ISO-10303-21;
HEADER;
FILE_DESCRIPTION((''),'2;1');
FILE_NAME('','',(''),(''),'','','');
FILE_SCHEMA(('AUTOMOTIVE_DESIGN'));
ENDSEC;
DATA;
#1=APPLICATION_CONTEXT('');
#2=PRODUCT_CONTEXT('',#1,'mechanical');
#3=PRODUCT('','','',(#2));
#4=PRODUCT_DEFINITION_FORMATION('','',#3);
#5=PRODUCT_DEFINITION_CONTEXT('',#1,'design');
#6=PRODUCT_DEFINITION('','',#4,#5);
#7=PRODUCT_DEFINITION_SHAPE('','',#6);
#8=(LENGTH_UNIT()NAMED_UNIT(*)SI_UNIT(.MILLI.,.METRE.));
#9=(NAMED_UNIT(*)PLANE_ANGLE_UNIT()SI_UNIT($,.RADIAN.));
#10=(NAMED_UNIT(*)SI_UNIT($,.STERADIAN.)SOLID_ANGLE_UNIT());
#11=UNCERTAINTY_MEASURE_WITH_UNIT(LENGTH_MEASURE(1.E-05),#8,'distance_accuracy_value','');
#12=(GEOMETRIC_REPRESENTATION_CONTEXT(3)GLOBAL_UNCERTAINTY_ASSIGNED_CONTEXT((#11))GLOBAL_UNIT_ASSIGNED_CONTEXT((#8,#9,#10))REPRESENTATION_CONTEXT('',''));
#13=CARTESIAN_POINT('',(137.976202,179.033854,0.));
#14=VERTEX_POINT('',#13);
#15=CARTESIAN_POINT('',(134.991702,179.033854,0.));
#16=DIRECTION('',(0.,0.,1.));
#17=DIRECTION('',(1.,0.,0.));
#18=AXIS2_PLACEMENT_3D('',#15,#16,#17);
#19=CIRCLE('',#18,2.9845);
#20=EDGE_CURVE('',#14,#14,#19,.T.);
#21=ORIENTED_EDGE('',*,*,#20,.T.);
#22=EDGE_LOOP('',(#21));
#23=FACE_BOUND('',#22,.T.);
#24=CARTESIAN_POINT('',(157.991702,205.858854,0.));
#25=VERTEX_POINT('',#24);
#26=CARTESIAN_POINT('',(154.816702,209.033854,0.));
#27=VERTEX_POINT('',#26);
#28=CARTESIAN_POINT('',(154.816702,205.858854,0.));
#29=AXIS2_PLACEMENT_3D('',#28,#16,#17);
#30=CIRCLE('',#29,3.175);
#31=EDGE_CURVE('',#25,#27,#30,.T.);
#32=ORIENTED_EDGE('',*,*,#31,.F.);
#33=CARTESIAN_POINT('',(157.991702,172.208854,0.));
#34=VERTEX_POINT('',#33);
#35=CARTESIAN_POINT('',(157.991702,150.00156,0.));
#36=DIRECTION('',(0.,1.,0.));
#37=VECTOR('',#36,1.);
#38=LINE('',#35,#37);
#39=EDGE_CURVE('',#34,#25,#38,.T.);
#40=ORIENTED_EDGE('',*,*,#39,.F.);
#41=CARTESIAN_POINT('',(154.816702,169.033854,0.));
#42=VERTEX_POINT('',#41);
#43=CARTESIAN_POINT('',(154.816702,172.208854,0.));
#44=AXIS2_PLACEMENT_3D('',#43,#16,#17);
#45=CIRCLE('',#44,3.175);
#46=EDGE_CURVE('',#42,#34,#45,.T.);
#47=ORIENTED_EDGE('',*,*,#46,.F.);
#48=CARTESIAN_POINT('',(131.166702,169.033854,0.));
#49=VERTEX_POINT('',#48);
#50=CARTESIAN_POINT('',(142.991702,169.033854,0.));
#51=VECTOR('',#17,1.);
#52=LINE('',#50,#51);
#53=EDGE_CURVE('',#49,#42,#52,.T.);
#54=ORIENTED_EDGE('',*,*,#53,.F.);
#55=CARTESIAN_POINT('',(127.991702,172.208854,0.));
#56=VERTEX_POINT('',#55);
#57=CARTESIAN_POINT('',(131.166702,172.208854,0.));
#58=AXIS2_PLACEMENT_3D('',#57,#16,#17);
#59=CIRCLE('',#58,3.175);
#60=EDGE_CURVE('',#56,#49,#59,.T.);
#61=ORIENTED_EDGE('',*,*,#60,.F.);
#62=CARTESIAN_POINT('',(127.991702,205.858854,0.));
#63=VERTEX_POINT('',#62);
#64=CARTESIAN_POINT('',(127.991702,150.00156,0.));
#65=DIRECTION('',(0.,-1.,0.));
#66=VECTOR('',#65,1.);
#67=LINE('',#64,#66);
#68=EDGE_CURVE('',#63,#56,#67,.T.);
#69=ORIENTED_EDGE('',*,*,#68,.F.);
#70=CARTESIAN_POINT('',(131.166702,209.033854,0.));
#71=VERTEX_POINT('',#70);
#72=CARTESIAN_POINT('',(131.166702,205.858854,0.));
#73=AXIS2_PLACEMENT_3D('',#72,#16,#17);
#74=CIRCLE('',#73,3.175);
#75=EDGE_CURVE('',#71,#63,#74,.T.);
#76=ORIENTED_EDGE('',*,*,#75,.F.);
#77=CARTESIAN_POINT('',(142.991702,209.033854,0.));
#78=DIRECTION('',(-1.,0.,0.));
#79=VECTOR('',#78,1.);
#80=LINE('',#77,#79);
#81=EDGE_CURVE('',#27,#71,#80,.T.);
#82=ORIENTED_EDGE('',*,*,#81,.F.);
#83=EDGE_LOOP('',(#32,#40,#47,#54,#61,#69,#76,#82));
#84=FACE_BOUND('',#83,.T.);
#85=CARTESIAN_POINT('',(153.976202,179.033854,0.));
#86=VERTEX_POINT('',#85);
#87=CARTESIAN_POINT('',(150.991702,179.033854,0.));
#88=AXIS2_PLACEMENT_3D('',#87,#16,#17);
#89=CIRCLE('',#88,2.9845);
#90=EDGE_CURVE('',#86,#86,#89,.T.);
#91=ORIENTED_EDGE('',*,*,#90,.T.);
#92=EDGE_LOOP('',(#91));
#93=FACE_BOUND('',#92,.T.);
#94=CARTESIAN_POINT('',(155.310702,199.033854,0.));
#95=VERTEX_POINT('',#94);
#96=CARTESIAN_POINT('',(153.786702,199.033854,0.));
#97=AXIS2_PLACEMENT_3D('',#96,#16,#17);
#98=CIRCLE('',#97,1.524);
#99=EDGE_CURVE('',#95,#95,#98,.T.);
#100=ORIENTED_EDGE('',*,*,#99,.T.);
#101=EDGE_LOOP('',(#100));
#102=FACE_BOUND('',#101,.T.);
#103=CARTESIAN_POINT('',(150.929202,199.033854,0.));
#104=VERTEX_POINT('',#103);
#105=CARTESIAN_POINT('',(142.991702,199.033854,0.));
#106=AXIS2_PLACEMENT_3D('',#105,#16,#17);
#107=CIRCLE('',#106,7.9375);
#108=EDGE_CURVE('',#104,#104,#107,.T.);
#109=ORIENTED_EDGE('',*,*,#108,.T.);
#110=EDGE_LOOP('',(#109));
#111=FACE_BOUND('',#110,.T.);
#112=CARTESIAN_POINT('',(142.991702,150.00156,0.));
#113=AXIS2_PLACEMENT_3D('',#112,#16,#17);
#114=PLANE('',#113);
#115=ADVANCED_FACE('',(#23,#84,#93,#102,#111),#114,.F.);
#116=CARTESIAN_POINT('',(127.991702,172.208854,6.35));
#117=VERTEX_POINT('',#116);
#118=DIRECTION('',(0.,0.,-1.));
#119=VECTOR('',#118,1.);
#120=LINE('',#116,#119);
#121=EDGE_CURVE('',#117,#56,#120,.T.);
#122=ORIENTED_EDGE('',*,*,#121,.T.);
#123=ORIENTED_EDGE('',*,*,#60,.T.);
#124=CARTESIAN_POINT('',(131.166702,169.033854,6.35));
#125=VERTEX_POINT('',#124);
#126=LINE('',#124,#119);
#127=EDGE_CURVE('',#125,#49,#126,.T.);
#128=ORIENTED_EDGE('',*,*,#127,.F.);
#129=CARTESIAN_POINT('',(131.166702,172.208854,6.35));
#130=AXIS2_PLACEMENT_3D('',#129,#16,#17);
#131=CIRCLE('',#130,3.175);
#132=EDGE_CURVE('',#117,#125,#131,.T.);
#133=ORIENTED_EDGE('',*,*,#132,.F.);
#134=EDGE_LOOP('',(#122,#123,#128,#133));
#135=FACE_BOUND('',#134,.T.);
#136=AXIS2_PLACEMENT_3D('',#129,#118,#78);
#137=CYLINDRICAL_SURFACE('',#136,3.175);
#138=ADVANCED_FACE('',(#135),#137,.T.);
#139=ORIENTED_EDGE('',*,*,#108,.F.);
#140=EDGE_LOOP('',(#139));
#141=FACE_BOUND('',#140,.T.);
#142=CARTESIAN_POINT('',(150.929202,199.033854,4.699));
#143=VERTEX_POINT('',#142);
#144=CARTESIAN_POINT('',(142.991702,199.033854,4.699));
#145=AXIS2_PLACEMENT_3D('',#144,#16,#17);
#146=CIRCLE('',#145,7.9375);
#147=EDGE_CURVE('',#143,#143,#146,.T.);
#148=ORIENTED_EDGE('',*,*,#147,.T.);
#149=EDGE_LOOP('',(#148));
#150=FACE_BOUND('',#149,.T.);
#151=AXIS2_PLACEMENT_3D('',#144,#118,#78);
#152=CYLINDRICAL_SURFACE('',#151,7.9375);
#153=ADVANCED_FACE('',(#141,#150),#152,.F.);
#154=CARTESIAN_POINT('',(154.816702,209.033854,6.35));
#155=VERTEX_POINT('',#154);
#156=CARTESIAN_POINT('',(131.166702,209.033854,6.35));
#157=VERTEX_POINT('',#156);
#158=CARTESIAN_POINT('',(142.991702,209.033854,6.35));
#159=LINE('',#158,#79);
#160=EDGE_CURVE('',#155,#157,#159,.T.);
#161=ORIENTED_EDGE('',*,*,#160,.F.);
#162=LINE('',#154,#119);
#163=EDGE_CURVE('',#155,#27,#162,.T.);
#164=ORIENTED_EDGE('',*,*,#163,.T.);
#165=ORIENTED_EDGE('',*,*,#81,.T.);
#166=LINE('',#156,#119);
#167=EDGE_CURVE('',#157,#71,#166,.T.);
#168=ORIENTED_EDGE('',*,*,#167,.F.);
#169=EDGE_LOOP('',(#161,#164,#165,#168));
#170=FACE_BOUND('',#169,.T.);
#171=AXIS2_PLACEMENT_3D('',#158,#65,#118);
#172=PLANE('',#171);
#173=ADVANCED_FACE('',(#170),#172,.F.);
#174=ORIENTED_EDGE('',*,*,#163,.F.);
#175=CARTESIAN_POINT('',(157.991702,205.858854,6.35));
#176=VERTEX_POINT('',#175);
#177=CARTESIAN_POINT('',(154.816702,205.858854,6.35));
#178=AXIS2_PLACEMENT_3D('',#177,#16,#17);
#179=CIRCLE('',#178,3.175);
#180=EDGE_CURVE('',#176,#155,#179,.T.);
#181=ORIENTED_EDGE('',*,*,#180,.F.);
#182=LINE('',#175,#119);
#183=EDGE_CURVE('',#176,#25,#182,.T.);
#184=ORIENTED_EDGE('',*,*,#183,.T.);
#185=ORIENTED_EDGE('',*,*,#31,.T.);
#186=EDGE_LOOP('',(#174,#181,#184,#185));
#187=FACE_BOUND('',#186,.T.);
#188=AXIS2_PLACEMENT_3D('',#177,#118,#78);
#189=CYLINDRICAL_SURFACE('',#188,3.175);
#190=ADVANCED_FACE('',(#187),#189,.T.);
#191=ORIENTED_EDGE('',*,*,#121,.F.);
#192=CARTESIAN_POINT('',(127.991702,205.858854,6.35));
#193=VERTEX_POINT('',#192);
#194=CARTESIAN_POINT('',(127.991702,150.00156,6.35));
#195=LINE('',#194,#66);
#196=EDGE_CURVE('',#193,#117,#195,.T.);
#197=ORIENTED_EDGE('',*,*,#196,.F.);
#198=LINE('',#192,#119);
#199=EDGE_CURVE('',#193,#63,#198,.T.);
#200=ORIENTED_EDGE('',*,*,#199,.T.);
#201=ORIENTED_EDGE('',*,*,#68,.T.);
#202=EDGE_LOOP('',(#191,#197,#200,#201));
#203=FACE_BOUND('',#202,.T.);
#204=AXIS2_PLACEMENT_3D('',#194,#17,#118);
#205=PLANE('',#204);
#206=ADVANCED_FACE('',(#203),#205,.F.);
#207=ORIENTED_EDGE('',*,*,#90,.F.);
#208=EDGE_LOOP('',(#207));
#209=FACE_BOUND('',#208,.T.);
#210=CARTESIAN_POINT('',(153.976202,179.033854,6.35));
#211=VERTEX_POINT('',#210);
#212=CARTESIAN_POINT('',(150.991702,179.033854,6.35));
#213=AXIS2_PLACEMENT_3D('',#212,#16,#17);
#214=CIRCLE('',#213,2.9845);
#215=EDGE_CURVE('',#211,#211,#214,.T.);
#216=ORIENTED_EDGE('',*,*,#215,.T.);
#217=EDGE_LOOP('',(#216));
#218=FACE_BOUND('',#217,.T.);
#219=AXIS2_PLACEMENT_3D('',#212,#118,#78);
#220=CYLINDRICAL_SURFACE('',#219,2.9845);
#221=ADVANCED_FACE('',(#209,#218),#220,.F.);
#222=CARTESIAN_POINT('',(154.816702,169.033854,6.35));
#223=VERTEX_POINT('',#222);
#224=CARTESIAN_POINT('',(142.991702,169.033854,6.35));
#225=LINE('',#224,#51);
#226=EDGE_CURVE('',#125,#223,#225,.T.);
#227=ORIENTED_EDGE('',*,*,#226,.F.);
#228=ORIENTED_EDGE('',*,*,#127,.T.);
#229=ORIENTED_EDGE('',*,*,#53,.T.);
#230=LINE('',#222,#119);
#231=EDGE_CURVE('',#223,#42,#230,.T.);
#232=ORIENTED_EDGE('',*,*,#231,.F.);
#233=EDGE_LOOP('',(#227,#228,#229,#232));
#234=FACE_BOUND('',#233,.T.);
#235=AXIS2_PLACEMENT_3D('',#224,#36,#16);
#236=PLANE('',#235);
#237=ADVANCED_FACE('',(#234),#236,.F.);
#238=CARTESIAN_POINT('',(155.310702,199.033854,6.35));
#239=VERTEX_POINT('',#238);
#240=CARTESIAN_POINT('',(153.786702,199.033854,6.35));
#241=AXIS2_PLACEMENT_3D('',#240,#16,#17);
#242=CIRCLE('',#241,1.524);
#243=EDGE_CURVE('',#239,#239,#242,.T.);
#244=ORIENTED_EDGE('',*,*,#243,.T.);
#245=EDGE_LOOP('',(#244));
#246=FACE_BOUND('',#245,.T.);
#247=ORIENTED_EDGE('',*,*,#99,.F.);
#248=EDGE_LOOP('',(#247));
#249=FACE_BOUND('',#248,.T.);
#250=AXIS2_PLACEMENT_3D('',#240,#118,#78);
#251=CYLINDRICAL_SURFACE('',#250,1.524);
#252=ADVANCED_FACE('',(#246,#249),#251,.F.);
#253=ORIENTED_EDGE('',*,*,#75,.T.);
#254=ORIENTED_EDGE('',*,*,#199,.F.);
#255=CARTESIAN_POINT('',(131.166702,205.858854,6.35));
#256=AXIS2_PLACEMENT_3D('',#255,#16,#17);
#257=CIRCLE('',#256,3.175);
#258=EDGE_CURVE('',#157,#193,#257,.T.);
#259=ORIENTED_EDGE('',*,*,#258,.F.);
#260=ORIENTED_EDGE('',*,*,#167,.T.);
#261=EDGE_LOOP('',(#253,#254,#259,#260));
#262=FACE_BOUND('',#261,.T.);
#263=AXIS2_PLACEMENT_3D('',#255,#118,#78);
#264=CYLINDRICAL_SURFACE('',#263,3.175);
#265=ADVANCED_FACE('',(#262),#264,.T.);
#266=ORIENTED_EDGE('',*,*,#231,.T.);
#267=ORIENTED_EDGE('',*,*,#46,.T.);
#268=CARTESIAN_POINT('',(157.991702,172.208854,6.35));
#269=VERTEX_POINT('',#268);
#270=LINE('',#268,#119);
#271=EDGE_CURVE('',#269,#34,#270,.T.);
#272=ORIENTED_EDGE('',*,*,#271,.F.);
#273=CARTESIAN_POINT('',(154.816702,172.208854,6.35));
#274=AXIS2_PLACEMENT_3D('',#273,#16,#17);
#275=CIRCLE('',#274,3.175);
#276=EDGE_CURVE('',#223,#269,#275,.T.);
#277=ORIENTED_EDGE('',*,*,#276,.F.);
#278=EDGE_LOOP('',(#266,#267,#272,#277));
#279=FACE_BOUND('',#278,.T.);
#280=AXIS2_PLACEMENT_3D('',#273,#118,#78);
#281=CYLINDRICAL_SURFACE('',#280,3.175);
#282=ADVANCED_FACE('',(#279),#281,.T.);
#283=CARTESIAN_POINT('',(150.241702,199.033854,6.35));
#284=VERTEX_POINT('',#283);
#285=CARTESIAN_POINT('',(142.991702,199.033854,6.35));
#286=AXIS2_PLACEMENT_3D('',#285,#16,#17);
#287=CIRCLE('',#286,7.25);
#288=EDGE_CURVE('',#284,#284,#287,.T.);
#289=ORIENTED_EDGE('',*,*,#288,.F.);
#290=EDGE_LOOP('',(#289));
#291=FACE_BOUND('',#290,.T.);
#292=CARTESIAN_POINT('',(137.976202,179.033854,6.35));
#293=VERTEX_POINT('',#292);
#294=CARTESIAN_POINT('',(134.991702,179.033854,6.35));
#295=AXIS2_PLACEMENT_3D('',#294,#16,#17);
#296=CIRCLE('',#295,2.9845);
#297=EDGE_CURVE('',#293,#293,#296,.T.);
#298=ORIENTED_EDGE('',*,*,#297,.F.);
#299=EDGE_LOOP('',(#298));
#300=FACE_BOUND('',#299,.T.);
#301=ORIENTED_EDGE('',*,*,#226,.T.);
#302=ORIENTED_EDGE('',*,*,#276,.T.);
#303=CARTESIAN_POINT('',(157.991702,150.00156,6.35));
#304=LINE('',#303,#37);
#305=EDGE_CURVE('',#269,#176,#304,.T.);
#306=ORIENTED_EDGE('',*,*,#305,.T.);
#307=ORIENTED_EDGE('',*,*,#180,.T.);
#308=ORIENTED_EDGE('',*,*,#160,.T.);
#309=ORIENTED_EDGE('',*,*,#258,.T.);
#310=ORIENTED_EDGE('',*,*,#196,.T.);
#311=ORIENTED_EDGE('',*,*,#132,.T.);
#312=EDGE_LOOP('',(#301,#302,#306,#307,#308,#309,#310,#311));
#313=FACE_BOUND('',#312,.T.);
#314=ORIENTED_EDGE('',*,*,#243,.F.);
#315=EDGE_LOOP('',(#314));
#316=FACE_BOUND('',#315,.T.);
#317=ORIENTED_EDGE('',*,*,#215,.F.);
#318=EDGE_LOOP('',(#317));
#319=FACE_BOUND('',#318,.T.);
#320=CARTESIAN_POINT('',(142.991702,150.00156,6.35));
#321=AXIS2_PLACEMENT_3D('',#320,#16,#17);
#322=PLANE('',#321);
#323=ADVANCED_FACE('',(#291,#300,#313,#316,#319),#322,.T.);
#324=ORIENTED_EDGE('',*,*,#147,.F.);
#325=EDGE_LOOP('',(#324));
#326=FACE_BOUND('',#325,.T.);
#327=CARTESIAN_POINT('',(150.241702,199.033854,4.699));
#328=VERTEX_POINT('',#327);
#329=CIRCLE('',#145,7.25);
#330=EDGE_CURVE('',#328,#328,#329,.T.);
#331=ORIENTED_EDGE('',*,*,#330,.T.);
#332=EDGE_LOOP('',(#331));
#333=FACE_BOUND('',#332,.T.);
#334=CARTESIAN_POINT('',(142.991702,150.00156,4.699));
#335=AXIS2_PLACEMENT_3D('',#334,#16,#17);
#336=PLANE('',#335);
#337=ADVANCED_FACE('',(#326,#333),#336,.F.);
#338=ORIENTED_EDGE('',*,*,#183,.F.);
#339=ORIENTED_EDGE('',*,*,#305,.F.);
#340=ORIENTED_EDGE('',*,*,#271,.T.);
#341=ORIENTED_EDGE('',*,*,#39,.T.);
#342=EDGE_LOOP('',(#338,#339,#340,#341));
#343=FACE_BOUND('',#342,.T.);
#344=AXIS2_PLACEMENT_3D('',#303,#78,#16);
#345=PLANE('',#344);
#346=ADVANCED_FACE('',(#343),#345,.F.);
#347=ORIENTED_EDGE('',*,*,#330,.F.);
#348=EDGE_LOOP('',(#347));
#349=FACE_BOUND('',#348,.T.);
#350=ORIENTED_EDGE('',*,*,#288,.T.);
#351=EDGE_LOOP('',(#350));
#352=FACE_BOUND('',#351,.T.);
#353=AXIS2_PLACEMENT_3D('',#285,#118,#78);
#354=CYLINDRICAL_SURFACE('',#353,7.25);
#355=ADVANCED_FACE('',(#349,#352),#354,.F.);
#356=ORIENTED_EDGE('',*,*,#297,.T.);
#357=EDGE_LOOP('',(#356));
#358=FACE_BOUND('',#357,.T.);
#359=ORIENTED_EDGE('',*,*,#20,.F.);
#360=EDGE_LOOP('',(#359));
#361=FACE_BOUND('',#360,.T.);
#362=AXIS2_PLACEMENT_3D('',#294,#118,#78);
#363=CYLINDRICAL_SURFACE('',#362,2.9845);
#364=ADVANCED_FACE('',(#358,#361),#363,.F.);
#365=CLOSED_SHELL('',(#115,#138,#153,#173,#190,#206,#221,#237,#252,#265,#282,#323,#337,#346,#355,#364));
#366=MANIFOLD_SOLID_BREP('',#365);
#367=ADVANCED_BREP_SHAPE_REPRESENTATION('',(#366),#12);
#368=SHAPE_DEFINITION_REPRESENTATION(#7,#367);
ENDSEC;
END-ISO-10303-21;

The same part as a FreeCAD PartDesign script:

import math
import FreeCAD as App
import Part
import Sketcher

V = App.Vector
Q = App.Units.Quantity

doc = App.newDocument("Part")
body = doc.addObject("PartDesign::Body", "Body")

sketch1 = body.newObject("Sketcher::SketchObject", "Sketch")
sketch1.AttachmentSupport = (doc.getObject("XY_Plane"), [""])
sketch1.MapMode = "FlatFace"
sketch1.addGeometry([
    Part.LineSegment(V(158, 172.2, 0), V(158, 205.9, 0)),
    Part.ArcOfCircle(Part.Circle(V(154.8, 205.9, 0), V(0, 0, 1), 3.2), math.radians(0), math.radians(90)),
    Part.LineSegment(V(154.8, 209, 0), V(131.2, 209, 0)),
    Part.ArcOfCircle(Part.Circle(V(131.2, 205.9, 0), V(0, 0, 1), 3.2), math.radians(90), math.radians(180)),
    Part.LineSegment(V(128, 205.9, 0), V(128, 172.2, 0)),
    Part.ArcOfCircle(Part.Circle(V(131.2, 172.2, 0), V(0, 0, 1), 3.2), math.radians(180), math.radians(270)),
    Part.LineSegment(V(131.2, 169, 0), V(154.8, 169, 0)),
    Part.ArcOfCircle(Part.Circle(V(154.8, 172.2, 0), V(0, 0, 1), 3.2), math.radians(-90), math.radians(0)),
    Part.Circle(V(135, 179, 0), V(0, 0, 1), 3),
    Part.Circle(V(151, 179, 0), V(0, 0, 1), 3),
    Part.Circle(V(153.8, 199, 0), V(0, 0, 1), 1.5),
    Part.Circle(V(143, 199, 0), V(0, 0, 1), 7.3),
], False)
sketch1.addConstraint([
    Sketcher.Constraint("Tangent", 0, 2, 1, 1),
    Sketcher.Constraint("Tangent", 1, 2, 2, 1),
    Sketcher.Constraint("Tangent", 2, 2, 3, 1),
    Sketcher.Constraint("Tangent", 3, 2, 4, 1),
    Sketcher.Constraint("Tangent", 4, 2, 5, 1),
    Sketcher.Constraint("Tangent", 5, 2, 6, 1),
    Sketcher.Constraint("Tangent", 6, 2, 7, 1),
    Sketcher.Constraint("Tangent", 7, 2, 0, 1),
    Sketcher.Constraint("Vertical", 0),
    Sketcher.Constraint("Horizontal", 2),
    Sketcher.Constraint("Vertical", 4),
    Sketcher.Constraint("Horizontal", 6),
    Sketcher.Constraint("Equal", 1, 3),
    Sketcher.Constraint("Equal", 3, 5),
    Sketcher.Constraint("Equal", 5, 7),
    Sketcher.Constraint("Equal", 8, 9),
    Sketcher.Constraint("Horizontal", 8, 3, 9, 3),
    Sketcher.Constraint("Horizontal", 10, 3, 11, 3),
    Sketcher.Constraint("Diameter", 10, Q("0.12 in")),
    Sketcher.Constraint("Diameter", 8, Q("0.235 in")),
    Sketcher.Constraint("Radius", 1, Q("0.125 in")),
    Sketcher.Constraint("Diameter", 11, 14.5),
    Sketcher.Constraint("DistanceX", 11, 3, 10, 3, Q("0.425 in")),
    Sketcher.Constraint("DistanceX", 2, 2, 2, 1, 23.65),
    Sketcher.Constraint("DistanceY", 0, 1, 0, 2, 33.65),
    Sketcher.Constraint("DistanceX", -1, 1, 1, 3, 154.816702),
    Sketcher.Constraint("DistanceX", -1, 1, 8, 3, 134.991702),
    Sketcher.Constraint("DistanceX", -1, 1, 9, 3, 150.991702),
    Sketcher.Constraint("DistanceX", -1, 1, 10, 3, 153.786702),
    Sketcher.Constraint("DistanceY", 5, 3, 8, 3, 6.825),
    Sketcher.Constraint("DistanceY", 10, 3, 1, 3, 6.825),
    Sketcher.Constraint("DistanceY", -1, 1, 1, 3, 205.858854),
])
pad1 = body.newObject("PartDesign::Pad", "Pad")
pad1.Profile = sketch1
pad1.Length = Q("0.25 in")

sketch2 = body.newObject("Sketcher::SketchObject", "Sketch001")
sketch2.AttachmentSupport = (doc.getObject("XY_Plane"), [""])
sketch2.MapMode = "FlatFace"
sketch2.addGeometry([
    Part.Circle(V(143, 199, 0), V(0, 0, 1), 8),
    Part.Circle(V(143, 199, 0), V(0, 0, 1), 7),
], False)
sketch2.addConstraint([
    Sketcher.Constraint("Coincident", 1, 3, 0, 3),
    Sketcher.Constraint("Diameter", 0, Q("0.625 in")),
    Sketcher.Constraint("Diameter", 1, 14.5),
    Sketcher.Constraint("DistanceX", -1, 1, 0, 3, 142.991702),
    Sketcher.Constraint("DistanceY", -1, 1, 0, 3, 199.033854),
])
pocket1 = body.newObject("PartDesign::Pocket", "Pocket")
pocket1.Profile = sketch2
pocket1.Length = Q("0.185 in")
pocket1.Reversed = True

doc.recompute()
